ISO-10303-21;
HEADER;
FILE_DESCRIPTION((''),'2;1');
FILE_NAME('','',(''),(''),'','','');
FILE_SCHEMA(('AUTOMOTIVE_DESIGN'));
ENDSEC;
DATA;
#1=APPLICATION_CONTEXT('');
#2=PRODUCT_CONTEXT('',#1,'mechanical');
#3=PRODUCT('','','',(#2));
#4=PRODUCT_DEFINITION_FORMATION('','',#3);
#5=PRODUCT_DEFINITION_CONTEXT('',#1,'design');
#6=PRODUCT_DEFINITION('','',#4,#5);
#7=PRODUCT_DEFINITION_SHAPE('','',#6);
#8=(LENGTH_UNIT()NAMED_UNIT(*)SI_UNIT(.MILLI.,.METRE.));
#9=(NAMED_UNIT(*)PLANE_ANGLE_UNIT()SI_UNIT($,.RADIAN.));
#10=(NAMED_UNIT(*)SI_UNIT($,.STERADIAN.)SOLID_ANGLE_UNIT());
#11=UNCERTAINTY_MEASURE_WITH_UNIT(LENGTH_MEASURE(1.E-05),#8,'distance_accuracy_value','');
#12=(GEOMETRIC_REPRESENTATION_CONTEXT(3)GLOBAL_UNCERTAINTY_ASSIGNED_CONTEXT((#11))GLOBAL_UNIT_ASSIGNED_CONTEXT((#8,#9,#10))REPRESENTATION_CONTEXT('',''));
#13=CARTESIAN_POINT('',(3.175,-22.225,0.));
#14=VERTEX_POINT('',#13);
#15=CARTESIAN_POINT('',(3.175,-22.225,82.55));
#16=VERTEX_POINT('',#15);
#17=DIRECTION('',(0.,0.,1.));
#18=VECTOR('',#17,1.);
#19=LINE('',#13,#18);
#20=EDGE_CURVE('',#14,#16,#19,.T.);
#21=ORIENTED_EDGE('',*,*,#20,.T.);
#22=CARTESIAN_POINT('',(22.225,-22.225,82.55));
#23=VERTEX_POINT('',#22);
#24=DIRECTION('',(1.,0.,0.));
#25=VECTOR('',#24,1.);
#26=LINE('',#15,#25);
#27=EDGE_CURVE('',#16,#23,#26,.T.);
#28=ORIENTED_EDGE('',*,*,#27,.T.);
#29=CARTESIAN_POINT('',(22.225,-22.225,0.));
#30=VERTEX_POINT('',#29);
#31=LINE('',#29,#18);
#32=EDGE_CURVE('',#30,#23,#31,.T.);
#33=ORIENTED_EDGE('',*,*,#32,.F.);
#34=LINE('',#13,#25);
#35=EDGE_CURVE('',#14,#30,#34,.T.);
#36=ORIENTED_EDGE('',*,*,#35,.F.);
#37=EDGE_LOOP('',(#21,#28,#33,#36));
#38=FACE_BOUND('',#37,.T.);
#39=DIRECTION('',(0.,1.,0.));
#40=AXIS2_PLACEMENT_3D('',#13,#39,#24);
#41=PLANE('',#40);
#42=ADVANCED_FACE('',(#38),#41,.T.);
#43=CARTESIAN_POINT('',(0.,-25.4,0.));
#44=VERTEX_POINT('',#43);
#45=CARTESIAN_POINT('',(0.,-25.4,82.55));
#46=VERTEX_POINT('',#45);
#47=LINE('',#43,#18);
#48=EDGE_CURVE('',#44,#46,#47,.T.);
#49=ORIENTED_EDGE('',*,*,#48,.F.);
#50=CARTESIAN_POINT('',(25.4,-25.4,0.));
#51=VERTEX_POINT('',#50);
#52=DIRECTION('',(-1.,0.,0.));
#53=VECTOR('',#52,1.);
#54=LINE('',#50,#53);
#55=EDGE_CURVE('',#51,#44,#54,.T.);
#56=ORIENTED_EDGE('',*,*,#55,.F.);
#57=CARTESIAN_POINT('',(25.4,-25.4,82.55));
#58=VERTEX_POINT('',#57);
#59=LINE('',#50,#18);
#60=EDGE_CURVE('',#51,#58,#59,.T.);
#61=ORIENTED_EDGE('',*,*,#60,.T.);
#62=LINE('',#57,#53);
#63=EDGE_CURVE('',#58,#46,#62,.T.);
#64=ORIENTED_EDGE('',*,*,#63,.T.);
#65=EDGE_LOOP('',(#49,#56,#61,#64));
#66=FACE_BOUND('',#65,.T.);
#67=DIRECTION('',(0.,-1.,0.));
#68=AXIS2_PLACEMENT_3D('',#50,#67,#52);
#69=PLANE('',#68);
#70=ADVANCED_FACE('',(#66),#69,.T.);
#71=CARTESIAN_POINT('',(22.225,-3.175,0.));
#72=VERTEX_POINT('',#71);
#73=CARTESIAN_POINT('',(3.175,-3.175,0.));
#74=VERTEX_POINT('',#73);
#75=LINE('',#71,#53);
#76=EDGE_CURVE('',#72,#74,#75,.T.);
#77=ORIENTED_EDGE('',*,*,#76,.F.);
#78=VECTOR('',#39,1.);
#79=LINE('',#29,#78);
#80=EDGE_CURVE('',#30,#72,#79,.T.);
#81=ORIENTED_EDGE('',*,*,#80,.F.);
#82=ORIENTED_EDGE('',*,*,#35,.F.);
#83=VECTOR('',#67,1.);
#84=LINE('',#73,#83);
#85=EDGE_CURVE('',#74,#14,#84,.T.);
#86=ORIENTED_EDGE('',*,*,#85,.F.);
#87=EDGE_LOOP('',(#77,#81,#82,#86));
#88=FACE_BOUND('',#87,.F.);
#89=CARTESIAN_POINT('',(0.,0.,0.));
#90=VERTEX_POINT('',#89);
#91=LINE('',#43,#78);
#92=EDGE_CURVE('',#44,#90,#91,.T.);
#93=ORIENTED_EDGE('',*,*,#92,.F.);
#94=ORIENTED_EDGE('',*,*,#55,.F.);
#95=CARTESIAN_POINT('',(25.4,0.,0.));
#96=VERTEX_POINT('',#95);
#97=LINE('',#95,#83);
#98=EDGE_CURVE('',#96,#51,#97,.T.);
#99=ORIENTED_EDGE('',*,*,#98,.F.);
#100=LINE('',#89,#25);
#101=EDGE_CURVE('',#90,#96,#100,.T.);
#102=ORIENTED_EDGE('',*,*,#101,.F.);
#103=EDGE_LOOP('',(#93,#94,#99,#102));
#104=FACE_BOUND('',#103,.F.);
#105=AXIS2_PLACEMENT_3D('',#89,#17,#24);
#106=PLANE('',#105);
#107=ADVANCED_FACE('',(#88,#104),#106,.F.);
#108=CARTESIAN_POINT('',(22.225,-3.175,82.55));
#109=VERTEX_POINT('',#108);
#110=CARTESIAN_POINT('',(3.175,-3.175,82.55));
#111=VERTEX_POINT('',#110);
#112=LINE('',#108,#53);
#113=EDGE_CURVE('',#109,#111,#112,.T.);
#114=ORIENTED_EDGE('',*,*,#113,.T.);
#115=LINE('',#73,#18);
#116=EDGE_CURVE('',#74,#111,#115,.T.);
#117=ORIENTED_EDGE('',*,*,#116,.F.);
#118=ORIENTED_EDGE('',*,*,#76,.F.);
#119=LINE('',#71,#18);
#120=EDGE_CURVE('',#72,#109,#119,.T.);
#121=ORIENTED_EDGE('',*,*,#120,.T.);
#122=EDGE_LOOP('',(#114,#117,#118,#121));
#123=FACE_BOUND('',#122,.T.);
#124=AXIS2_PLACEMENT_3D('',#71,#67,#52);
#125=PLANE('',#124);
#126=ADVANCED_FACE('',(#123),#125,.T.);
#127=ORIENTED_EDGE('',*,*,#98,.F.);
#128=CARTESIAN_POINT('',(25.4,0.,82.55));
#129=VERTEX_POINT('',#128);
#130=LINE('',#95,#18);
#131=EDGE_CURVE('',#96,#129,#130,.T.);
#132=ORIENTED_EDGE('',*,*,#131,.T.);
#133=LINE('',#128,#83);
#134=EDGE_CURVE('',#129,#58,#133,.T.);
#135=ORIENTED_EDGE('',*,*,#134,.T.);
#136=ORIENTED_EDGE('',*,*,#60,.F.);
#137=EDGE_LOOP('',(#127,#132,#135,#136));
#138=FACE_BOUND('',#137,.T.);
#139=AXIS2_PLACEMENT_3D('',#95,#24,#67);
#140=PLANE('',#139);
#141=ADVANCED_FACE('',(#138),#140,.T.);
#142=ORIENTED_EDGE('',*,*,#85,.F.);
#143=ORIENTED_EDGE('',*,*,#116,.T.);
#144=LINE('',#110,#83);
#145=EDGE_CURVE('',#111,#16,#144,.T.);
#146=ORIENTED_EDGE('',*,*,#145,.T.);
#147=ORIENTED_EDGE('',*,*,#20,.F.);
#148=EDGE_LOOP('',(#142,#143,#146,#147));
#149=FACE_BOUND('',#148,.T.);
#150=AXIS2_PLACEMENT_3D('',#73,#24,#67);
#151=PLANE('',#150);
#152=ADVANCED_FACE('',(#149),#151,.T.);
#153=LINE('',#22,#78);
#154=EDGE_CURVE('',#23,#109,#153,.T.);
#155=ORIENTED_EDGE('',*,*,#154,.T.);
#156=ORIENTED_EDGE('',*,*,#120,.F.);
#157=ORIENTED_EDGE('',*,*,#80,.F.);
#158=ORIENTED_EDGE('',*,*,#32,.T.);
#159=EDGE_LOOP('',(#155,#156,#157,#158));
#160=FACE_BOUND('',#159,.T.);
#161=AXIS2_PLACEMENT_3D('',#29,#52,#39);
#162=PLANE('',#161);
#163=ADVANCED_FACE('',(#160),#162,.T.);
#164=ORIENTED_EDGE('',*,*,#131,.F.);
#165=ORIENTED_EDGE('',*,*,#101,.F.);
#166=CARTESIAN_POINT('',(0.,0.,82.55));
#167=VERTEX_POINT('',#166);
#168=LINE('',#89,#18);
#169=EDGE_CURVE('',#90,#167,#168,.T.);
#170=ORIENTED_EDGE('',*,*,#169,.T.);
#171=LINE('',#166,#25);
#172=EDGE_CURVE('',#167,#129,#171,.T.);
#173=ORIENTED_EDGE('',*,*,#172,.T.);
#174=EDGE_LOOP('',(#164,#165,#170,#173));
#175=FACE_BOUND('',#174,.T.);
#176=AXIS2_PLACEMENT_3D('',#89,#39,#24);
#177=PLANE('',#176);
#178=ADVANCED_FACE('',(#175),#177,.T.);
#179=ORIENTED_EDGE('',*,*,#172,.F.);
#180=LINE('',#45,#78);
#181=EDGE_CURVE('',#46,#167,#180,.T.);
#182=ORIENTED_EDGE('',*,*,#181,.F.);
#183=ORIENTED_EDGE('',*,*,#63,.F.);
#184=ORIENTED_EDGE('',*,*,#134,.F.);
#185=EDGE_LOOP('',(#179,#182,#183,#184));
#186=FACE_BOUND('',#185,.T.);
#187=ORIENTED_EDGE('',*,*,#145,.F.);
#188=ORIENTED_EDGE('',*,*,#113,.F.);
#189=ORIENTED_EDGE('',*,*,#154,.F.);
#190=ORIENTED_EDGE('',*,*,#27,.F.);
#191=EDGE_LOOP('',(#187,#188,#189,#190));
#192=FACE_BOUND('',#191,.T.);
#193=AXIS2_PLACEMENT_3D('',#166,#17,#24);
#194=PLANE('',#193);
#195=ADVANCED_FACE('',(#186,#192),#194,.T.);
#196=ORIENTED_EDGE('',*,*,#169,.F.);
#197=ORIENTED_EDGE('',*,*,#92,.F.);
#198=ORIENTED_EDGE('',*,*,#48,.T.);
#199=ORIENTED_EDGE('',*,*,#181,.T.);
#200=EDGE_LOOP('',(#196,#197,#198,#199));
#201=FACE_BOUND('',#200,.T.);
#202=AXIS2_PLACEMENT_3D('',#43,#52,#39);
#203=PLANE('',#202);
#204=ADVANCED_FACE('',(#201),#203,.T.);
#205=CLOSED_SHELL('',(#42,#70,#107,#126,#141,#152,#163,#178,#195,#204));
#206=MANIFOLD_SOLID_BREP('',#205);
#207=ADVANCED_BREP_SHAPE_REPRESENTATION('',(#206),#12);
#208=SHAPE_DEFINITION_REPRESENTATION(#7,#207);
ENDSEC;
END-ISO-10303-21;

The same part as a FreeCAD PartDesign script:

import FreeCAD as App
import Part
import Sketcher

V = App.Vector
Q = App.Units.Quantity

doc = App.newDocument("Part")
body = doc.addObject("PartDesign::Body", "Body")

# Sketch on XY plane
sketch1 = doc.addObject("Sketcher::SketchObject", "Sketch")
body.addObject(sketch1)
sketch1.AttachmentSupport = (doc.XY_Plane, [""])
sketch1.MapMode = "FlatFace"
sketch1.addGeometry([
    Part.LineSegment(V(25, 0, 0), V(0, 0, 0)),  # 0
    Part.LineSegment(V(0, 0, 0), V(0, -25, 0)),  # 1
    Part.LineSegment(V(0, -25, 0), V(25, -25, 0)),  # 2
    Part.LineSegment(V(25, -25, 0), V(25, 0, 0)),  # 3
    Part.LineSegment(V(3, -3, 0), V(22, -3, 0)),  # 4
    Part.LineSegment(V(22, -3, 0), V(22, -22, 0)),  # 5
    Part.LineSegment(V(22, -22, 0), V(3, -22, 0)),  # 6
    Part.LineSegment(V(3, -22, 0), V(3, -3, 0)),  # 7
], False)
sketch1.addConstraint([
    Sketcher.Constraint("Coincident", 0, 2, 1, 1),
    Sketcher.Constraint("Coincident", 1, 2, 2, 1),
    Sketcher.Constraint("Coincident", 2, 2, 3, 1),
    Sketcher.Constraint("Coincident", 3, 2, 0, 1),
    Sketcher.Constraint("Coincident", 4, 2, 5, 1),
    Sketcher.Constraint("Coincident", 5, 2, 6, 1),
    Sketcher.Constraint("Coincident", 6, 2, 7, 1),
    Sketcher.Constraint("Coincident", 7, 2, 4, 1),
    Sketcher.Constraint("Horizontal", 0),
    Sketcher.Constraint("Vertical", 1),
    Sketcher.Constraint("Horizontal", 2),
    Sketcher.Constraint("Vertical", 3),
    Sketcher.Constraint("Horizontal", 4),
    Sketcher.Constraint("Vertical", 5),
    Sketcher.Constraint("Horizontal", 6),
    Sketcher.Constraint("Vertical", 7),
    Sketcher.Constraint("Coincident", 0, 2, -1, 1),
    Sketcher.Constraint("Equal", 2, 1),
    Sketcher.Constraint("Equal", 6, 5),
    Sketcher.Constraint("DistanceX", 0, 2, 0, 1, Q("1 in")),
    Sketcher.Constraint("DistanceY", 4, 2, -1, 1, Q("0.125 in")),
    Sketcher.Constraint("DistanceX", -1, 1, 6, 2, Q("0.125 in")),
    Sketcher.Constraint("DistanceX", 4, 2, 3, 2, Q("0.125 in")),
])
pad1 = doc.addObject("PartDesign::Pad", "Pad")
body.addObject(pad1)
pad1.Profile = sketch1
pad1.Length = Q("3.25 in")

doc.recompute()
